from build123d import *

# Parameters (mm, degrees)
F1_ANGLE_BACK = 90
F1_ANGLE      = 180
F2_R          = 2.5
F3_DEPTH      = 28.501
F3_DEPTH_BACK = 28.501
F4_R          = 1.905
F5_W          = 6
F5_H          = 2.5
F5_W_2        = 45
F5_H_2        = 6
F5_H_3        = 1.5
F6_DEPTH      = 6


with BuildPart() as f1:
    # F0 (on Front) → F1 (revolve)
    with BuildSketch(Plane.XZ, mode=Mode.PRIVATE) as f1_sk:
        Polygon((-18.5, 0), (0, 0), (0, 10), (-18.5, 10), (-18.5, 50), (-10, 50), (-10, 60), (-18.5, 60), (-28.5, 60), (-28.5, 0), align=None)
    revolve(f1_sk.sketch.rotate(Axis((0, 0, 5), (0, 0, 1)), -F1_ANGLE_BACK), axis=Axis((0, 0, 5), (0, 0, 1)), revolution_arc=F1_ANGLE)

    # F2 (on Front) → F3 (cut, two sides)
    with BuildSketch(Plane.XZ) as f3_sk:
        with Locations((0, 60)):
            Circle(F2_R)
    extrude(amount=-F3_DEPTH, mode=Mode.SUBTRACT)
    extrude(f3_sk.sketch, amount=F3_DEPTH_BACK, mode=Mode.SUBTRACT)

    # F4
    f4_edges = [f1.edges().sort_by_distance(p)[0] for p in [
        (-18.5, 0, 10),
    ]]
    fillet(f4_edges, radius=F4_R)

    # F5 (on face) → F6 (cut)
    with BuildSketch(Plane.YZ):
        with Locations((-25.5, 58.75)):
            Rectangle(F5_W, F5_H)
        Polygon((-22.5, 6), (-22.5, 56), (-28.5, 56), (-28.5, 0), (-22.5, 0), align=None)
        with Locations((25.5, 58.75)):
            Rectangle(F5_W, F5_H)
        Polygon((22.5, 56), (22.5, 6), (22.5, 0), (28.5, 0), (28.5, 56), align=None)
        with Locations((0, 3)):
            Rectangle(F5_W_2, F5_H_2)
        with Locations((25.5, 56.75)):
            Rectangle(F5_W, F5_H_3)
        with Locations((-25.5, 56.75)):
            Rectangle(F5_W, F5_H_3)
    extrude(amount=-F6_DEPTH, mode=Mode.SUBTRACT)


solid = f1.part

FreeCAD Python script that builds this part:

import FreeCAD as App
import Part
import Sketcher
Q = App.Units.Quantity


def edges_at(feature, points):
    """Names of the edges that pass closest to the given points."""
    edges = feature.Shape.Edges
    near = lambda p: min(range(len(edges)), key=lambda i: edges[i].distToShape(Part.Vertex(*p))[0])
    return sorted({f"Edge{near(p) + 1}" for p in points})


def add_polygon(sketch, points):
    """Adds a closed chain of lines whose ends are joined by coincident constraints."""
    first, n = sketch.GeometryCount, len(points)
    for a, b in zip(points, points[1:] + points[:1]):
        sketch.addGeometry(Part.LineSegment(App.Vector(*a, 0), App.Vector(*b, 0)), False)
    for i in range(n):
        sketch.addConstraint(Sketcher.Constraint("Coincident", first + i, 2, first + (i + 1) % n, 1))

doc = App.newDocument("Part")
body = doc.addObject("PartDesign::Body", "Body")

# Sketch on YZ plane
sketch1 = body.newObject("Sketcher::SketchObject", "Sketch")
sketch1.AttachmentSupport = (doc.getObject("YZ_Plane"), [""])
sketch1.MapMode = "FlatFace"
add_polygon(sketch1, [(0, 0), (0, 10), (18, 10), (18, 50), (10, 50), (10, 60), (28, 60), (28, 0)])  # lines 0-7
sketch1.addConstraint(Sketcher.Constraint("Vertical", 0))
sketch1.addConstraint(Sketcher.Constraint("Horizontal", 1))
sketch1.addConstraint(Sketcher.Constraint("Vertical", 2))
sketch1.addConstraint(Sketcher.Constraint("Horizontal", 3))
sketch1.addConstraint(Sketcher.Constraint("Vertical", 4))
sketch1.addConstraint(Sketcher.Constraint("Horizontal", 5))
sketch1.addConstraint(Sketcher.Constraint("Vertical", 6))
sketch1.addConstraint(Sketcher.Constraint("Horizontal", 7))
sketch1.addConstraint(Sketcher.Constraint("Coincident", 7, 2, -1, 1))
sketch1.addConstraint(Sketcher.Constraint("Equal", 1, 5))
sketch1.addConstraint(Sketcher.Constraint("Equal", 0, 4))
sketch1.addConstraint(Sketcher.Constraint("DistanceY", 0, 1, 0, 2, Q("10 mm")))
sketch1.addConstraint(Sketcher.Constraint("DistanceY", 2, 1, 2, 2, Q("40 mm")))
sketch1.addConstraint(Sketcher.Constraint("DistanceX", 1, 1, 1, 2, Q("18.5 mm")))
sketch1.addConstraint(Sketcher.Constraint("DistanceX", 3, 2, 3, 1, Q("8.5 mm")))
revolution = body.newObject("PartDesign::Revolution", "Revolution")
revolution.Profile = sketch1
revolution.ReferenceAxis = (sketch1, ["V_Axis"])
revolution.Angle = 180

# Sketch on XZ plane
sketch2 = body.newObject("Sketcher::SketchObject", "Sketch001")
sketch2.AttachmentSupport = (doc.getObject("XZ_Plane"), [""])
sketch2.MapMode = "FlatFace"
sketch2.addGeometry(Part.Circle(App.Vector(0, 60, 0), App.Vector(0, 0, 1), 2.5), False)
sketch2.addConstraint(Sketcher.Constraint("PointOnObject", 0, 3, -2))
sketch2.addConstraint(Sketcher.Constraint("Diameter", 0, Q("5 mm")))
sketch2.addConstraint(Sketcher.Constraint("DistanceY", -1, 1, 0, 3, Q("60 mm")))
pocket1 = body.newObject("PartDesign::Pocket", "Pocket")
pocket1.Profile = sketch2
pocket1.Type = "ThroughAll"
pocket1.Midplane = True
doc.recompute()

fillet = body.newObject("PartDesign::Fillet", "Fillet")
fillet.Base = (pocket1, edges_at(pocket1, [(-18.5, 0, 10)]))
fillet.Radius = 1.905

# Sketch on YZ plane
sketch3 = body.newObject("Sketcher::SketchObject", "Sketch002")
sketch3.AttachmentSupport = (doc.getObject("YZ_Plane"), [""])
sketch3.MapMode = "FlatFace"
add_polygon(sketch3, [(-28, 60), (-28, 0), (28, 0), (28, 60), (22, 60), (22, 6), (-22, 6), (-22, 60)])  # lines 0-7
sketch3.addConstraint(Sketcher.Constraint("Vertical", 0))
sketch3.addConstraint(Sketcher.Constraint("Horizontal", 1))
sketch3.addConstraint(Sketcher.Constraint("Vertical", 2))
sketch3.addConstraint(Sketcher.Constraint("Horizontal", 3))
sketch3.addConstraint(Sketcher.Constraint("Vertical", 4))
sketch3.addConstraint(Sketcher.Constraint("Horizontal", 5))
sketch3.addConstraint(Sketcher.Constraint("Vertical", 6))
sketch3.addConstraint(Sketcher.Constraint("Horizontal", 7))
sketch3.addConstraint(Sketcher.Constraint("Symmetric", 0, 2, 1, 2, -1, 1))
sketch3.addConstraint(Sketcher.Constraint("Symmetric", 3, 2, 6, 2, -2))
sketch3.addConstraint(Sketcher.Constraint("DistanceX", 1, 1, 1, 2, Q("57 mm")))
sketch3.addConstraint(Sketcher.Constraint("DistanceX", 3, 2, 3, 1, Q("6 mm")))
sketch3.addConstraint(Sketcher.Constraint("DistanceY", 0, 2, 0, 1, Q("60 mm")))
sketch3.addConstraint(Sketcher.Constraint("DistanceY", 4, 2, 4, 1, Q("54 mm")))
pocket2 = body.newObject("PartDesign::Pocket", "Pocket001")
pocket2.Profile = sketch3
pocket2.Length = 6

doc.recompute()
